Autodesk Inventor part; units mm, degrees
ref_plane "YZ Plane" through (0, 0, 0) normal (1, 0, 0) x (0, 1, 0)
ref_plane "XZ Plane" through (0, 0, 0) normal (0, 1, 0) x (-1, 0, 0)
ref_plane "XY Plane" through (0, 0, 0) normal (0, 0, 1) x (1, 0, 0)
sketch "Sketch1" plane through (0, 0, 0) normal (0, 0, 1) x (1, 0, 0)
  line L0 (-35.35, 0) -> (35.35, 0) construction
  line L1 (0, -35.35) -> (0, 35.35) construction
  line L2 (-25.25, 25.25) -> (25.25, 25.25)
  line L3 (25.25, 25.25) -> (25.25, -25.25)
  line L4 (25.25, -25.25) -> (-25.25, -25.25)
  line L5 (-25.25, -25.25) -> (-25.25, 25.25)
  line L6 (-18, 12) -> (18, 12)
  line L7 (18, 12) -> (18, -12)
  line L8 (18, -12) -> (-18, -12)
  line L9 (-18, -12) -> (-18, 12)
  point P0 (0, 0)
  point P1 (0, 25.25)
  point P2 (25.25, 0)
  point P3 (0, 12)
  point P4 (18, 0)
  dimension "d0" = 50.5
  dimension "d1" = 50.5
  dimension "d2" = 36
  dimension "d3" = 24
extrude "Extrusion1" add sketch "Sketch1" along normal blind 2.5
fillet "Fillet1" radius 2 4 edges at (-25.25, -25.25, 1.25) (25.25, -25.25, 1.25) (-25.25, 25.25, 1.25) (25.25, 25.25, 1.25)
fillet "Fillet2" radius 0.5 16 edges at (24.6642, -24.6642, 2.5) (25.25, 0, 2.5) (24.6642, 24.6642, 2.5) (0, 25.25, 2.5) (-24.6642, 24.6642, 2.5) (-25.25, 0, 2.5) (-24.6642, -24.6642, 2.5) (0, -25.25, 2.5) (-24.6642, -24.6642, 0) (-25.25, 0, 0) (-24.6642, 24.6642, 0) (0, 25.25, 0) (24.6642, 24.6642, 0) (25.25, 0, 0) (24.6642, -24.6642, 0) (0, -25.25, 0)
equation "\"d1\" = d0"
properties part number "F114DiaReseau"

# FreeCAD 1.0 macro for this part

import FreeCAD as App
import Part
import Sketcher
from FreeCAD import Vector
Q = App.Units.Quantity


def edges_at(feature, points):
    """Names of the edges that pass closest to the given points."""
    edges = feature.Shape.Edges
    near = lambda p: min(range(len(edges)), key=lambda i: edges[i].distToShape(Part.Vertex(*p))[0])
    return sorted({f"Edge{near(p) + 1}" for p in points})


def add_polygon(sketch, points):
    """Adds a closed chain of lines whose ends are joined by coincident constraints."""
    first, n = sketch.GeometryCount, len(points)
    for a, b in zip(points, points[1:] + points[:1]):
        sketch.addGeometry(Part.LineSegment(App.Vector(*a, 0), App.Vector(*b, 0)), False)
    for i in range(n):
        sketch.addConstraint(Sketcher.Constraint("Coincident", first + i, 2, first + (i + 1) % n, 1))

doc = App.newDocument("Part")
body = doc.addObject("PartDesign::Body", "Body")

# Sketch on XY plane
sketch1 = doc.addObject("Sketcher::SketchObject", "Sketch")
body.addObject(sketch1)
sketch1.AttachmentSupport = (doc.XY_Plane, [""])
sketch1.MapMode = "FlatFace"
add_polygon(sketch1, [(25.25, 25.25), (-25.25, 25.25), (-25.25, -25.25), (25.25, -25.25)])  # lines 0-3
add_polygon(sketch1, [(-18, -12), (-18, 12), (18, 12), (18, -12)])  # lines 4-7
sketch1.addConstraint(Sketcher.Constraint("Horizontal", 0))
sketch1.addConstraint(Sketcher.Constraint("Vertical", 1))
sketch1.addConstraint(Sketcher.Constraint("Horizontal", 2))
sketch1.addConstraint(Sketcher.Constraint("Vertical", 3))
sketch1.addConstraint(Sketcher.Constraint("Vertical", 4))
sketch1.addConstraint(Sketcher.Constraint("Horizontal", 5))
sketch1.addConstraint(Sketcher.Constraint("Vertical", 6))
sketch1.addConstraint(Sketcher.Constraint("Horizontal", 7))
sketch1.addConstraint(Sketcher.Constraint("Symmetric", 0, 2, 2, 2, -1, 1))
sketch1.addConstraint(Sketcher.Constraint("Symmetric", 4, 2, 6, 2, -1, 1))
sketch1.addConstraint(Sketcher.Constraint("Equal", 2, 1))
sketch1.addConstraint(Sketcher.Constraint("DistanceX", 5, 1, 5, 2, Q("36 mm")))
sketch1.addConstraint(Sketcher.Constraint("DistanceY", 4, 1, 4, 2, Q("24 mm")))
sketch1.addConstraint(Sketcher.Constraint("DistanceX", 0, 2, 0, 1, Q("50.5 mm")))
pad1 = doc.addObject("PartDesign::Pad", "Pad")
body.addObject(pad1)
pad1.Profile = sketch1
pad1.Length = 2.5
doc.recompute()

fillet = doc.addObject("PartDesign::Fillet", "Fillet")
body.addObject(fillet)
fillet.Base = (pad1, edges_at(pad1, [
    (-25.25, -25.25, 1.25),
    (25.25, -25.25, 1.25),
    (-25.25, 25.25, 1.25),
    (25.25, 25.25, 1.25),
]))
fillet.Radius = 2
doc.recompute()

fillet2 = doc.addObject("PartDesign::Fillet", "Fillet001")
body.addObject(fillet2)
fillet2.Base = (fillet, edges_at(fillet, [
    (24.664, -24.664, 2.5),
    (25.25, 0, 2.5),
    (24.664, 24.664, 2.5),
    (0, 25.25, 2.5),
    (-24.664, 24.664, 2.5),
    (-25.25, 0, 2.5),
    (-24.664, -24.664, 2.5),
    (0, -25.25, 2.5),
    (-24.664, -24.664, 0),
    (-25.25, 0, 0),
    (-24.664, 24.664, 0),
    (0, 25.25, 0),
    (24.664, 24.664, 0),
    (25.25, 0, 0),
    (24.664, -24.664, 0),
    (0, -25.25, 0),
]))
fillet2.Radius = 0.5

doc.recompute()
